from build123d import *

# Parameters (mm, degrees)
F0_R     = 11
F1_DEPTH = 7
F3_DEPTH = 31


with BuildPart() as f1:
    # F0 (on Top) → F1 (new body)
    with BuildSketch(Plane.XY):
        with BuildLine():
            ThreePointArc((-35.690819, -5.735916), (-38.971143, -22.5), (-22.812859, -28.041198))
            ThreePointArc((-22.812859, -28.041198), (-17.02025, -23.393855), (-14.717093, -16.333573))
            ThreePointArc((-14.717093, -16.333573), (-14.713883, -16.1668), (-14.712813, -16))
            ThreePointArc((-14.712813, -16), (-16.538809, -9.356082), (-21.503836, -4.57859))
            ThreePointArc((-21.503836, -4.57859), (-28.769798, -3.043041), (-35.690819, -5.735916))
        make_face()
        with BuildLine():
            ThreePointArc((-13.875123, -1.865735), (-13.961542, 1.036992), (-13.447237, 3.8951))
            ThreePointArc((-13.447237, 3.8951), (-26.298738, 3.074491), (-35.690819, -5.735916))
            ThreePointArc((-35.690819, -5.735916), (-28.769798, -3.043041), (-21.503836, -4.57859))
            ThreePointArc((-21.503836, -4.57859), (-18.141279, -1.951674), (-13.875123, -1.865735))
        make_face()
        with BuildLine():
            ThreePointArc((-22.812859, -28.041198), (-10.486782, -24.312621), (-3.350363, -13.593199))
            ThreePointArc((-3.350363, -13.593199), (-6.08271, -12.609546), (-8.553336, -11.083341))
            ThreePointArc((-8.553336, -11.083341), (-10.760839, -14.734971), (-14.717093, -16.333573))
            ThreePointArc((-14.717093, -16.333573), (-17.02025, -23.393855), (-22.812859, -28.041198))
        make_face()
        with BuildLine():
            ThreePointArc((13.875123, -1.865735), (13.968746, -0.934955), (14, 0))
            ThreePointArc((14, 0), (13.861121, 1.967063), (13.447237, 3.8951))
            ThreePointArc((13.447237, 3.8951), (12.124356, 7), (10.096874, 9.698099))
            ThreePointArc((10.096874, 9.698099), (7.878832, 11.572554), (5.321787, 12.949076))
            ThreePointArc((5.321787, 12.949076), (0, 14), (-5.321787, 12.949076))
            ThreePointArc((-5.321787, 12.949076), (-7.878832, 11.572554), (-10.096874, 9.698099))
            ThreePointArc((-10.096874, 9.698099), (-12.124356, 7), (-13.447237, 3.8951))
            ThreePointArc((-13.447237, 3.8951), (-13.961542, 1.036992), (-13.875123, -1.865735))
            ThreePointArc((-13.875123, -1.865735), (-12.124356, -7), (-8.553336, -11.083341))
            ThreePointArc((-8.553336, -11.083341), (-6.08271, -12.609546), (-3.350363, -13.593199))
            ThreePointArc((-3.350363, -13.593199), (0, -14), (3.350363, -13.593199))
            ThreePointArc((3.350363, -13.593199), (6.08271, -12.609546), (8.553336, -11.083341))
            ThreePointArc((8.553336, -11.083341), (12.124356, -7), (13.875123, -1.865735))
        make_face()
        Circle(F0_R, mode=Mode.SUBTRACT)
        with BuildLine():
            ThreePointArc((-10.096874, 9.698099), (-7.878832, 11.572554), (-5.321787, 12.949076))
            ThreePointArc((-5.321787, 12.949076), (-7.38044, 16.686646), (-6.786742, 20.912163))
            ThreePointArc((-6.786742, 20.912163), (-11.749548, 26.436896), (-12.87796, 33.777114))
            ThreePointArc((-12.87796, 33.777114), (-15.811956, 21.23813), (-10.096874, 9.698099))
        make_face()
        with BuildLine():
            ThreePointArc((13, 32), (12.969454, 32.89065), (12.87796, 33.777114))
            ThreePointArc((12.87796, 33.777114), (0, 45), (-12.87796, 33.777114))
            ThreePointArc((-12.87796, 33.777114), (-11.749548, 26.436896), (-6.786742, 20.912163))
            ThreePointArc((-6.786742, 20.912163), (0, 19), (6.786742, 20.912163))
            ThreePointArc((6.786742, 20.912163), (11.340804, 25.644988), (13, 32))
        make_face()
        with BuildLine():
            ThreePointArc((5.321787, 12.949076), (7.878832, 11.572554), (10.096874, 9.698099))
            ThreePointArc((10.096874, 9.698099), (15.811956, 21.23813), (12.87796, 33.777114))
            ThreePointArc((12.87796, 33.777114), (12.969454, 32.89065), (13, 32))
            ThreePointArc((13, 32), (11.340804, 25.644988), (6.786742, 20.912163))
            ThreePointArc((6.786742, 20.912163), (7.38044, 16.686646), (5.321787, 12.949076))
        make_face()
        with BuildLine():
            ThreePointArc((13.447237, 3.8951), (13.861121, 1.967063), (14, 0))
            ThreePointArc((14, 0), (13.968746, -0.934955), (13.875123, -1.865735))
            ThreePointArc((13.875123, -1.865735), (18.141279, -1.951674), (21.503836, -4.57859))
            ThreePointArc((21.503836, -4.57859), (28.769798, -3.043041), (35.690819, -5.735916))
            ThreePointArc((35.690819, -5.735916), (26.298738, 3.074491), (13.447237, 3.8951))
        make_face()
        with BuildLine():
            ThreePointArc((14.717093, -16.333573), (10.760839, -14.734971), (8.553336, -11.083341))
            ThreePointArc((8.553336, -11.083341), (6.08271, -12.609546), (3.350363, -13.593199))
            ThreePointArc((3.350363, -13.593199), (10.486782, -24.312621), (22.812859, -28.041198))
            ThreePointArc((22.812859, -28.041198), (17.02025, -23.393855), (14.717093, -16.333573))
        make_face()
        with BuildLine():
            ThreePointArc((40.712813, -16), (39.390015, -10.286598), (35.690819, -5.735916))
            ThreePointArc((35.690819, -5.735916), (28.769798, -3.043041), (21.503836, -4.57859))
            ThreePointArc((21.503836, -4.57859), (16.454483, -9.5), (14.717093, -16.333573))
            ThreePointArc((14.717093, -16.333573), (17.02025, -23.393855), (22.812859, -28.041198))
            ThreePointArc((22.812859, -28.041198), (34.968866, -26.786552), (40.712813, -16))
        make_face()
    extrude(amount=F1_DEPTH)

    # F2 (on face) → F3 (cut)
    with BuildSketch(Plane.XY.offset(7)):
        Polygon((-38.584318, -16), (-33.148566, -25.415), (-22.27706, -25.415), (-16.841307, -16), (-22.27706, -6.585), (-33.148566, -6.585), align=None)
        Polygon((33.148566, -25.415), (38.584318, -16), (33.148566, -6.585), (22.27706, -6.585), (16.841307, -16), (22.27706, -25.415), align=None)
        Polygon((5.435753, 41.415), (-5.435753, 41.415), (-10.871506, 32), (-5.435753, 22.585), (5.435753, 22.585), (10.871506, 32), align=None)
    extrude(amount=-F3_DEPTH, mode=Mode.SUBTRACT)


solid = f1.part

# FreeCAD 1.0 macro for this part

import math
import FreeCAD as App
import Part
import Sketcher
Q = App.Units.Quantity

doc = App.newDocument("Part")
body = doc.addObject("PartDesign::Body", "Body")

# Sketch on XY plane
sketch1 = doc.addObject("Sketcher::SketchObject", "Sketch")
body.addObject(sketch1)
sketch1.AttachmentSupport = (doc.XY_Plane, [""])
sketch1.MapMode = "FlatFace"
sketch1.addGeometry([
    Part.ArcOfCircle(Part.Circle(App.Vector(-27.712813, -16, 0), App.Vector(0, 0, 1), 13), math.radians(127.856997), math.radians(292.143001)),  # 0
    Part.ArcOfCircle(Part.Circle(App.Vector(-21.839996, -9.019023, 0), App.Vector(0, 0, 1), 19.047037), math.radians(-92.927763), math.radians(-13.895488)),  # 1
    Part.ArcOfCircle(Part.Circle(App.Vector(0, -0.000011, 0), App.Vector(0, 0, 1), 13.999989), math.radians(-103.845927), math.radians(-76.154073)),  # 2
    Part.ArcOfCircle(Part.Circle(App.Vector(21.839996, -9.019023, 0), App.Vector(0, 0, 1), 19.047037), math.radians(-166.104512), math.radians(-87.072237)),  # 3
    Part.ArcOfCircle(Part.Circle(App.Vector(27.712814, -16.000001, 0), App.Vector(0, 0, 1), 12.999999), math.radians(-112.143005), math.radians(0.000003)),  # 4
    Part.ArcOfCircle(Part.Circle(App.Vector(27.712816, -15.999999, 0), App.Vector(0, 0, 1), 12.999997), math.radians(-0.000007), math.radians(52.143011)),  # 5
    Part.ArcOfCircle(Part.Circle(App.Vector(18.730701, -14.40448, 0), App.Vector(0, 0, 1), 19.047037), math.radians(27.072238), math.radians(106.104512)),  # 6
    Part.ArcOfCircle(Part.Circle(App.Vector(0.000022, 0.000013, 0), App.Vector(0, 0, 1), 13.999975), math.radians(16.154058), math.radians(43.845942)),  # 7
    Part.ArcOfCircle(Part.Circle(App.Vector(-3.109296, 23.423502, 0), App.Vector(0, 0, 1), 19.047037), math.radians(-46.104511), math.radians(32.927763)),  # 8
    Part.ArcOfCircle(Part.Circle(App.Vector(0, 32.000001, 0), App.Vector(0, 0, 1), 12.999999), math.radians(7.856994), math.radians(172.143006)),  # 9
    Part.ArcOfCircle(Part.Circle(App.Vector(3.109296, 23.423502, 0), App.Vector(0, 0, 1), 19.047037), math.radians(147.072237), math.radians(226.104511)),  # 10
    Part.ArcOfCircle(Part.Circle(App.Vector(-0.000022, 0.000013, 0), App.Vector(0, 0, 1), 13.999975), math.radians(136.154058), math.radians(163.845942)),  # 11
    Part.ArcOfCircle(Part.Circle(App.Vector(-18.730701, -14.40448, 0), App.Vector(0, 0, 1), 19.047037), math.radians(73.895488), math.radians(152.927762)),  # 12
    Part.ArcOfCircle(Part.Circle(App.Vector(15.138688, -9.595389, 0), App.Vector(0, 0, 1), 6.75136), math.radians(-167.267891), math.radians(-93.580218)),  # 13
    Part.ArcOfCircle(Part.Circle(App.Vector(0.000001, -0.000001, 0), App.Vector(0, 0, 1), 13.999999), math.radians(-52.341591), math.radians(-7.658406)),  # 14
    Part.ArcOfCircle(Part.Circle(App.Vector(15.879195, -8.312793, 0), App.Vector(0, 0, 1), 6.75136), math.radians(33.580212), math.radians(107.267887)),  # 15
    Part.ArcOfCircle(Part.Circle(App.Vector(27.712815, -16.000002, 0), App.Vector(0, 0, 1), 13.000003), math.radians(118.529665), math.radians(181.470332)),  # 16
    Part.ArcOfCircle(Part.Circle(App.Vector(0, 0.000007, 0), App.Vector(0, 0, 1), 13.999993), math.radians(67.6584), math.radians(112.3416)),  # 17
    Part.ArcOfCircle(Part.Circle(App.Vector(-0.740507, 17.908182, 0), App.Vector(0, 0, 1), 6.751359), math.radians(153.580204), math.radians(227.267891)),  # 18
    Part.ArcOfCircle(Part.Circle(App.Vector(0, 31.999999, 0), App.Vector(0, 0, 1), 12.999999), math.radians(-121.47034), math.radians(-58.52966)),  # 19
    Part.ArcOfCircle(Part.Circle(App.Vector(0.740507, 17.908182, 0), App.Vector(0, 0, 1), 6.751359), math.radians(-47.267891), math.radians(26.419796)),  # 20
    Part.ArcOfCircle(Part.Circle(App.Vector(-15.138688, -9.595389, 0), App.Vector(0, 0, 1), 6.75136), math.radians(-86.419782), math.radians(-12.732109)),  # 21
    Part.ArcOfCircle(Part.Circle(App.Vector(-27.713396, -16.000006, 0), App.Vector(0, 0, 1), 13.000583), math.radians(-1.470246), math.radians(0.000028)),  # 22
    Part.ArcOfCircle(Part.Circle(App.Vector(-27.71281, -15.999998, 0), App.Vector(0, 0, 1), 12.999997), math.radians(-0.000007), math.radians(61.470348)),  # 23
    Part.ArcOfCircle(Part.Circle(App.Vector(-15.879195, -8.312793, 0), App.Vector(0, 0, 1), 6.75136), math.radians(72.732113), math.radians(146.419788)),  # 24
    Part.ArcOfCircle(Part.Circle(App.Vector(-0.000001, -0.000001, 0), App.Vector(0, 0, 1), 13.999999), math.radians(-172.341594), math.radians(-127.658409)),  # 25
    Part.Circle(App.Vector(0, 0, 0), App.Vector(0, 0, 1), 11),  # 26
], False)
sketch1.addConstraint([
    Sketcher.Constraint("Coincident", 0, 2, 1, 1),
    Sketcher.Constraint("Coincident", 1, 2, 2, 1),
    Sketcher.Constraint("Coincident", 2, 2, 3, 1),
    Sketcher.Constraint("Coincident", 3, 2, 4, 1),
    Sketcher.Constraint("Coincident", 4, 2, 5, 1),
    Sketcher.Constraint("Coincident", 5, 2, 6, 1),
    Sketcher.Constraint("Coincident", 6, 2, 7, 1),
    Sketcher.Constraint("Coincident", 7, 2, 8, 1),
    Sketcher.Constraint("Coincident", 8, 2, 9, 1),
    Sketcher.Constraint("Coincident", 9, 2, 10, 1),
    Sketcher.Constraint("Coincident", 10, 2, 11, 1),
    Sketcher.Constraint("Coincident", 11, 2, 12, 1),
    Sketcher.Constraint("Coincident", 12, 2, 0, 1),
    Sketcher.Constraint("Coincident", 13, 1, 14, 1),
    Sketcher.Constraint("Coincident", 14, 2, 15, 2),
    Sketcher.Constraint("Coincident", 15, 1, 16, 1),
    Sketcher.Constraint("Coincident", 16, 2, 13, 2),
    Sketcher.Constraint("Coincident", 17, 2, 18, 2),
    Sketcher.Constraint("Coincident", 18, 1, 19, 1),
    Sketcher.Constraint("Coincident", 19, 2, 20, 2),
    Sketcher.Constraint("Coincident", 20, 1, 17, 1),
    Sketcher.Constraint("Coincident", 21, 1, 22, 1),
    Sketcher.Constraint("Coincident", 22, 2, 23, 1),
    Sketcher.Constraint("Coincident", 23, 2, 24, 2),
    Sketcher.Constraint("Coincident", 24, 1, 25, 1),
    Sketcher.Constraint("Coincident", 25, 2, 21, 2),
    Sketcher.Constraint("Coincident", 14, 3, -1, 1),
    Sketcher.Constraint("Coincident", 17, 3, -1, 1),
    Sketcher.Constraint("Coincident", 25, 3, -1, 1),
    Sketcher.Constraint("Coincident", 26, 3, -1, 1),
    Sketcher.Constraint("Coincident", 5, 3, 4, 3),
    Sketcher.Constraint("Coincident", 16, 3, 4, 3),
    Sketcher.Constraint("Coincident", 19, 3, 9, 3),
    Sketcher.Constraint("Coincident", 23, 3, 0, 3),
    Sketcher.Constraint("PointOnObject", 2, 3, -2),
    Sketcher.Constraint("PointOnObject", 9, 3, -2),
    Sketcher.Constraint("Diameter", 26, 22.0),
    Sketcher.Constraint("Radius", 0, 13.0),
    Sketcher.Constraint("Radius", 4, 12.999999),
    Sketcher.Constraint("Radius", 9, 12.999999),
    Sketcher.Constraint("Radius", 14, 13.999999),
    Sketcher.Constraint("Radius", 19, 12.999999),
    Sketcher.Constraint("Radius", 25, 13.999999),
    Sketcher.Constraint("DistanceY", 0, 3, -1, 1, 16.0),
    Sketcher.Constraint("DistanceY", 4, 3, -1, 1, 16.000001),
    Sketcher.Constraint("DistanceY", -1, 1, 9, 3, 32.000001),
    Sketcher.Constraint("DistanceY", 4, 2, -1, 1, 16.0),
    Sketcher.Constraint("DistanceY", 22, 2, -1, 1, 16.0),
    Sketcher.Constraint("Radius", 2, 13.999989),
    Sketcher.Constraint("Radius", 13, 6.75136),
    Sketcher.Constraint("Radius", 15, 6.75136),
    Sketcher.Constraint("Radius", 18, 6.751359),
    Sketcher.Constraint("Radius", 20, 6.751359),
    Sketcher.Constraint("Radius", 21, 6.75136),
    Sketcher.Constraint("Radius", 24, 6.75136),
    Sketcher.Constraint("Radius", 1, 19.047037),
    Sketcher.Constraint("Radius", 3, 19.047037),
    Sketcher.Constraint("Radius", 6, 19.047037),
    Sketcher.Constraint("Radius", 7, 13.999975),
    Sketcher.Constraint("Radius", 8, 19.047037),
    Sketcher.Constraint("Radius", 10, 19.047037),
    Sketcher.Constraint("Radius", 11, 13.999975),
    Sketcher.Constraint("Radius", 12, 19.047037),
    Sketcher.Constraint("Radius", 16, 13.000003),
    Sketcher.Constraint("Radius", 17, 13.999993),
    Sketcher.Constraint("Radius", 22, 13.000583),
    Sketcher.Constraint("Radius", 23, 12.999997),
    Sketcher.Constraint("DistanceY", 6, 2, 7, 2, 5.802999),
    Sketcher.Constraint("DistanceY", 11, 2, 10, 2, 5.802999),
    Sketcher.Constraint("DistanceX", -1, 1, 6, 3, 18.730701),
    Sketcher.Constraint("DistanceX", 12, 3, -1, 1, 18.730701),
    Sketcher.Constraint("DistanceY", 1, 2, -1, 1, 13.593199),
    Sketcher.Constraint("DistanceY", 2, 2, -1, 1, 13.593199),
    Sketcher.Constraint("DistanceY", 3, 2, -1, 1, 28.041198),
    Sketcher.Constraint("DistanceY", -1, 1, 6, 2, 3.8951),
    Sketcher.Constraint("DistanceY", -1, 1, 10, 2, 9.698099),
    Sketcher.Constraint("DistanceX", 1, 3, 8, 3, 18.7307),
    Sketcher.Constraint("DistanceY", 8, 3, 9, 3, 8.576498),
    Sketcher.Constraint("DistanceY", 10, 3, 9, 3, 8.576498),
    Sketcher.Constraint("DistanceX", 10, 3, 3, 3, 18.7307),
    Sketcher.Constraint("DistanceX", 15, 3, 3, 3, 5.960801),
    Sketcher.Constraint("DistanceY", 15, 3, 17, 3, 8.3128),
    Sketcher.Constraint("DistanceX", 22, 3, 1, 3, 5.8734),
    Sketcher.Constraint("DistanceX", 1, 3, 24, 3, 5.960801),
    Sketcher.Constraint("DistanceY", 0, 2, 0, 3, 12.041198),
    Sketcher.Constraint("DistanceX", 1, 2, 13, 1, 11.903699),
    Sketcher.Constraint("DistanceY", 13, 3, 15, 1, 5.016799),
    Sketcher.Constraint("DistanceX", 16, 2, 15, 3, 1.162102),
    Sketcher.Constraint("DistanceX", 24, 3, 21, 1, 1.162102),
    Sketcher.Constraint("DistanceY", 21, 3, 23, 2, 5.016799),
    Sketcher.Constraint("DistanceX", 23, 2, 11, 2, 8.056599),
    Sketcher.Constraint("DistanceY", 6, 3, -1, 1, 14.40448),
    Sketcher.Constraint("DistanceY", 12, 3, -1, 1, 14.40448),
    Sketcher.Constraint("DistanceY", -1, 1, 18, 3, 17.908182),
    Sketcher.Constraint("DistanceY", -1, 1, 20, 3, 17.908182),
    Sketcher.Constraint("DistanceY", 21, 3, -1, 1, 9.595389),
    Sketcher.Constraint("DistanceY", 25, 2, -1, 1, 11.083341),
    Sketcher.Constraint("DistanceX", 8, 3, 18, 3, 2.368788),
    Sketcher.Constraint("DistanceX", 20, 3, 10, 3, 2.368788),
])
pad1 = doc.addObject("PartDesign::Pad", "Pad")
body.addObject(pad1)
pad1.Profile = sketch1
pad1.Length = 7

# Sketch on XY plane
sketch2 = doc.addObject("Sketcher::SketchObject", "Sketch001")
body.addObject(sketch2)
sketch2.AttachmentSupport = (doc.XY_Plane, [""])
sketch2.MapMode = "FlatFace"
sketch2.AttachmentOffset = App.Placement(App.Vector(0, 0, 7), App.Rotation())
sketch2.addGeometry([
    Part.LineSegment(App.Vector(-38.584318, -16, 0), App.Vector(-33.148566, -25.415, 0)),  # 0
    Part.LineSegment(App.Vector(-33.148566, -25.415, 0), App.Vector(-22.27706, -25.415, 0)),  # 1
    Part.LineSegment(App.Vector(-22.27706, -25.415, 0), App.Vector(-16.841307, -16, 0)),  # 2
    Part.LineSegment(App.Vector(-16.841307, -16, 0), App.Vector(-22.27706, -6.585, 0)),  # 3
    Part.LineSegment(App.Vector(-22.27706, -6.585, 0), App.Vector(-33.148566, -6.585, 0)),  # 4
    Part.LineSegment(App.Vector(-33.148566, -6.585, 0), App.Vector(-38.584318, -16, 0)),  # 5
    Part.LineSegment(App.Vector(33.148566, -25.415, 0), App.Vector(38.584318, -16, 0)),  # 6
    Part.LineSegment(App.Vector(38.584318, -16, 0), App.Vector(33.148566, -6.585, 0)),  # 7
    Part.LineSegment(App.Vector(33.148566, -6.585, 0), App.Vector(22.27706, -6.585, 0)),  # 8
    Part.LineSegment(App.Vector(22.27706, -6.585, 0), App.Vector(16.841307, -16, 0)),  # 9
    Part.LineSegment(App.Vector(16.841307, -16, 0), App.Vector(22.27706, -25.415, 0)),  # 10
    Part.LineSegment(App.Vector(22.27706, -25.415, 0), App.Vector(33.148566, -25.415, 0)),  # 11
    Part.LineSegment(App.Vector(5.435753, 41.415, 0), App.Vector(-5.435753, 41.415, 0)),  # 12
    Part.LineSegment(App.Vector(-5.435753, 41.415, 0), App.Vector(-10.871506, 32, 0)),  # 13
    Part.LineSegment(App.Vector(-10.871506, 32, 0), App.Vector(-5.435753, 22.585, 0)),  # 14
    Part.LineSegment(App.Vector(-5.435753, 22.585, 0), App.Vector(5.435753, 22.585, 0)),  # 15
    Part.LineSegment(App.Vector(5.435753, 22.585, 0), App.Vector(10.871506, 32, 0)),  # 16
    Part.LineSegment(App.Vector(10.871506, 32, 0), App.Vector(5.435753, 41.415, 0)),  # 17
], False)
sketch2.addConstraint([
    Sketcher.Constraint("Coincident", 0, 2, 1, 1),
    Sketcher.Constraint("Coincident", 1, 2, 2, 1),
    Sketcher.Constraint("Coincident", 2, 2, 3, 1),
    Sketcher.Constraint("Coincident", 3, 2, 4, 1),
    Sketcher.Constraint("Coincident", 4, 2, 5, 1),
    Sketcher.Constraint("Coincident", 5, 2, 0, 1),
    Sketcher.Constraint("Coincident", 6, 2, 7, 1),
    Sketcher.Constraint("Coincident", 7, 2, 8, 1),
    Sketcher.Constraint("Coincident", 8, 2, 9, 1),
    Sketcher.Constraint("Coincident", 9, 2, 10, 1),
    Sketcher.Constraint("Coincident", 10, 2, 11, 1),
    Sketcher.Constraint("Coincident", 11, 2, 6, 1),
    Sketcher.Constraint("Coincident", 12, 2, 13, 1),
    Sketcher.Constraint("Coincident", 13, 2, 14, 1),
    Sketcher.Constraint("Coincident", 14, 2, 15, 1),
    Sketcher.Constraint("Coincident", 15, 2, 16, 1),
    Sketcher.Constraint("Coincident", 16, 2, 17, 1),
    Sketcher.Constraint("Coincident", 17, 2, 12, 1),
    Sketcher.Constraint("Horizontal", 1),
    Sketcher.Constraint("Horizontal", 4),
    Sketcher.Constraint("Horizontal", 8),
    Sketcher.Constraint("Horizontal", 11),
    Sketcher.Constraint("Horizontal", 12),
    Sketcher.Constraint("Horizontal", 15),
    Sketcher.Constraint("Symmetric", 5, 2, 6, 2, -2),
    Sketcher.Constraint("Symmetric", 4, 2, 7, 2, -2),
    Sketcher.Constraint("Symmetric", 2, 2, 9, 2, -2),
    Sketcher.Constraint("Symmetric", 1, 2, 10, 2, -2),
    Sketcher.Constraint("Symmetric", 13, 2, 16, 2, -2),
    Sketcher.Constraint("Parallel", 0, 3),
    Sketcher.Constraint("Parallel", 2, 5),
    Sketcher.Constraint("Parallel", 5, 6),
    Sketcher.Constraint("Parallel", 3, 7),
    Sketcher.Constraint("Parallel", 6, 9),
    Sketcher.Constraint("Parallel", 9, 13),
    Sketcher.Constraint("Parallel", 10, 14),
    Sketcher.Constraint("Parallel", 13, 16),
    Sketcher.Constraint("Parallel", 14, 17),
    Sketcher.Constraint("Horizontal", 2, 2, 5, 2),
    Sketcher.Constraint("Vertical", 1, 2, 3, 2),
    Sketcher.Constraint("Vertical", 12, 2, 14, 2),
    Sketcher.Constraint("Equal", 11, 12),
    Sketcher.Constraint("Equal", 10, 13),
    Sketcher.Constraint("Angle", 0, Q("-60.000004 deg")),
    Sketcher.Constraint("DistanceY", 2, 2, -1, 1, 16.0),
    Sketcher.Constraint("DistanceY", -1, 1, 13, 2, 32.0),
    Sketcher.Constraint("DistanceY", 1, 2, 3, 2, 18.83),
    Sketcher.Constraint("DistanceX", 2, 2, 13, 2, 5.969801),
    Sketcher.Constraint("DistanceX", 1, 1, 1, 2, 10.871506),
])
pocket1 = doc.addObject("PartDesign::Pocket", "Pocket")
body.addObject(pocket1)
pocket1.Profile = sketch2
pocket1.Length = 31

doc.recompute()
